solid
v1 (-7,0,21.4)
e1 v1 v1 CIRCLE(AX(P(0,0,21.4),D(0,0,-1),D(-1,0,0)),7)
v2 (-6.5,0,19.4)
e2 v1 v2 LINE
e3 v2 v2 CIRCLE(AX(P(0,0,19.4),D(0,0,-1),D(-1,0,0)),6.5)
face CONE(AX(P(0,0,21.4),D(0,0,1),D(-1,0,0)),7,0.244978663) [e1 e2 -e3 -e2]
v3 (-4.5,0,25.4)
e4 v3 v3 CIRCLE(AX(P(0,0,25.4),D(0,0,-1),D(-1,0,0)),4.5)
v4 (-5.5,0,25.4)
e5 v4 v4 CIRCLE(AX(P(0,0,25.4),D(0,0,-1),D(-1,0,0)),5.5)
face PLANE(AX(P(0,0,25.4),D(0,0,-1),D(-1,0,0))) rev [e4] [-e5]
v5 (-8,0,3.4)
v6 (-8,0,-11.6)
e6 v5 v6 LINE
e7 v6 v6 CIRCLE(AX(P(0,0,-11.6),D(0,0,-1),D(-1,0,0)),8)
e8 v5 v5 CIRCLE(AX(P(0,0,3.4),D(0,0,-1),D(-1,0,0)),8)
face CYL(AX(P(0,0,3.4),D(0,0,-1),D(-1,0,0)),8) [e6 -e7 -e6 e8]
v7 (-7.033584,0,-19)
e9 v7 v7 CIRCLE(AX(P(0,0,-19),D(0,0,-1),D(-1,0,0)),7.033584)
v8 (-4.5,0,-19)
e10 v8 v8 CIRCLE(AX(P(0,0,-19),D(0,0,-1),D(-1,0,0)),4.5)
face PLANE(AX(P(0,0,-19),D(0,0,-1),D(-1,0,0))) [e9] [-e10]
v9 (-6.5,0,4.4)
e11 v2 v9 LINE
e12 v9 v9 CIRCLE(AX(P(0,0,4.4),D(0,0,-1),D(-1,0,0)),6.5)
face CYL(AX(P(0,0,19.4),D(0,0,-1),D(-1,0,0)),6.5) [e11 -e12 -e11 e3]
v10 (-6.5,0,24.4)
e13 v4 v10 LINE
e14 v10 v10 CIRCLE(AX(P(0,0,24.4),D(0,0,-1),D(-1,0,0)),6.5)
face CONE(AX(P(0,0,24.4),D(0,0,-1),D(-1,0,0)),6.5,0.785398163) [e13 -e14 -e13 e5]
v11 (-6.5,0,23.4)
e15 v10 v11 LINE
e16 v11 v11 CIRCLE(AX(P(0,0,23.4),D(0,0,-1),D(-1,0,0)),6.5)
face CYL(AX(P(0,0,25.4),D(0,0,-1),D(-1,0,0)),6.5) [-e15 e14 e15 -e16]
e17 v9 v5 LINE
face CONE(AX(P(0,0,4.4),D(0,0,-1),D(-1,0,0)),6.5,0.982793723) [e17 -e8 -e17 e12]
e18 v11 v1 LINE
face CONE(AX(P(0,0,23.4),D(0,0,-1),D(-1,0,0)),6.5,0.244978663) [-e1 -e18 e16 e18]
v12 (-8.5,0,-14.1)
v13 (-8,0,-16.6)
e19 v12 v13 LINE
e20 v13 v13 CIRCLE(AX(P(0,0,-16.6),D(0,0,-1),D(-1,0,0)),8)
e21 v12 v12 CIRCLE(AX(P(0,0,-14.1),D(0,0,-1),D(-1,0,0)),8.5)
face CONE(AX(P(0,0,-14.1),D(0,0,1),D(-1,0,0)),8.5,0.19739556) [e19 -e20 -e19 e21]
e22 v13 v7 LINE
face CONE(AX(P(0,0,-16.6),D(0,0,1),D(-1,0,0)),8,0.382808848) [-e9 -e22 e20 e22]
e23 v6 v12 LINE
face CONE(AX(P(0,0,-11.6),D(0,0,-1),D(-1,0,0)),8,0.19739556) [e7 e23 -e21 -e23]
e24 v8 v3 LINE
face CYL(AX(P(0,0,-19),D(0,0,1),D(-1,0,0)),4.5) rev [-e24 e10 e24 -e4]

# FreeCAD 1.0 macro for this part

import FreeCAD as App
import Part
import Sketcher
from FreeCAD import Vector
Q = App.Units.Quantity


def edges_at(feature, points):
    """Names of the edges that pass closest to the given points."""
    edges = feature.Shape.Edges
    near = lambda p: min(range(len(edges)), key=lambda i: edges[i].distToShape(Part.Vertex(*p))[0])
    return sorted({f"Edge{near(p) + 1}" for p in points})


def add_polygon(sketch, points):
    """Adds a closed chain of lines whose ends are joined by coincident constraints."""
    first, n = sketch.GeometryCount, len(points)
    for a, b in zip(points, points[1:] + points[:1]):
        sketch.addGeometry(Part.LineSegment(App.Vector(*a, 0), App.Vector(*b, 0)), False)
    for i in range(n):
        sketch.addConstraint(Sketcher.Constraint("Coincident", first + i, 2, first + (i + 1) % n, 1))

doc = App.newDocument("Part")
body = doc.addObject("PartDesign::Body", "Body")

# Sketch on XZ plane
sketch1 = body.newObject("Sketcher::SketchObject", "Sketch")
sketch1.AttachmentSupport = (doc.getObject("XZ_Plane"), [""])
sketch1.MapMode = "FlatFace"
add_polygon(sketch1, [(-4.5, -19), (-4.5, 25.4), (-6.5, 25.4), (-6.5, 23.4), (-7, 21.4), (-6.5, 19.4), (-6.5, 4.4), (-8, 3.4), (-8, -11.6), (-8.5, -14.1), (-8, -16.6), (-7, -19)])  # lines 0-11
sketch1.addConstraint([
    Sketcher.Constraint("Vertical", 0),
    Sketcher.Constraint("Horizontal", 1),
    Sketcher.Constraint("Vertical", 2),
    Sketcher.Constraint("Vertical", 5),
    Sketcher.Constraint("Vertical", 7),
    Sketcher.Constraint("Horizontal", 11),
    Sketcher.Constraint("Vertical", 2, 2, 4, 2),
    Sketcher.Constraint("Vertical", 7, 2, 9, 2),
    Sketcher.Constraint("Equal", 1, 2),
    Sketcher.Constraint("Equal", 5, 7),
    Sketcher.Constraint("Equal", 3, 4),
    Sketcher.Constraint("Equal", 8, 9),
    Sketcher.Constraint("DistanceX", 1, 2, 1, 1, Q("2 mm")),
    Sketcher.Constraint("DistanceY", 5, 2, 5, 1, Q("15 mm")),
    Sketcher.Constraint("DistanceY", 0, 1, 0, 2, Q("44.4 mm")),
    Sketcher.Constraint("DistanceX", 3, 2, -1, 1, Q("7 mm")),
    Sketcher.Constraint("DistanceX", 6, 2, -1, 1, Q("8 mm")),
    Sketcher.Constraint("DistanceY", 10, 2, -1, 1, Q("19 mm")),
    Sketcher.Constraint("DistanceY", 3, 2, 2, 2, Q("2 mm")),
    Sketcher.Constraint("DistanceY", 6, 2, 5, 2, Q("1 mm")),
    Sketcher.Constraint("DistanceX", 8, 2, 5, 2, Q("2 mm")),
    Sketcher.Constraint("DistanceY", 9, 2, 7, 2, Q("5 mm")),
    Sketcher.Constraint("DistanceX", 0, 2, -1, 1, Q("4.5 mm")),
    Sketcher.Constraint("Distance", 10, Q("2.587269 mm")),
])
revolution = body.newObject("PartDesign::Revolution", "Revolution")
revolution.Profile = sketch1
revolution.ReferenceAxis = (sketch1, ["V_Axis"])
revolution.Angle = 360
doc.recompute()

chamfer = body.newObject("PartDesign::Chamfer", "Chamfer")
chamfer.Base = (revolution, edges_at(revolution, [(6.5, 0, 25.4)]))
chamfer.Size = 1

doc.recompute()
